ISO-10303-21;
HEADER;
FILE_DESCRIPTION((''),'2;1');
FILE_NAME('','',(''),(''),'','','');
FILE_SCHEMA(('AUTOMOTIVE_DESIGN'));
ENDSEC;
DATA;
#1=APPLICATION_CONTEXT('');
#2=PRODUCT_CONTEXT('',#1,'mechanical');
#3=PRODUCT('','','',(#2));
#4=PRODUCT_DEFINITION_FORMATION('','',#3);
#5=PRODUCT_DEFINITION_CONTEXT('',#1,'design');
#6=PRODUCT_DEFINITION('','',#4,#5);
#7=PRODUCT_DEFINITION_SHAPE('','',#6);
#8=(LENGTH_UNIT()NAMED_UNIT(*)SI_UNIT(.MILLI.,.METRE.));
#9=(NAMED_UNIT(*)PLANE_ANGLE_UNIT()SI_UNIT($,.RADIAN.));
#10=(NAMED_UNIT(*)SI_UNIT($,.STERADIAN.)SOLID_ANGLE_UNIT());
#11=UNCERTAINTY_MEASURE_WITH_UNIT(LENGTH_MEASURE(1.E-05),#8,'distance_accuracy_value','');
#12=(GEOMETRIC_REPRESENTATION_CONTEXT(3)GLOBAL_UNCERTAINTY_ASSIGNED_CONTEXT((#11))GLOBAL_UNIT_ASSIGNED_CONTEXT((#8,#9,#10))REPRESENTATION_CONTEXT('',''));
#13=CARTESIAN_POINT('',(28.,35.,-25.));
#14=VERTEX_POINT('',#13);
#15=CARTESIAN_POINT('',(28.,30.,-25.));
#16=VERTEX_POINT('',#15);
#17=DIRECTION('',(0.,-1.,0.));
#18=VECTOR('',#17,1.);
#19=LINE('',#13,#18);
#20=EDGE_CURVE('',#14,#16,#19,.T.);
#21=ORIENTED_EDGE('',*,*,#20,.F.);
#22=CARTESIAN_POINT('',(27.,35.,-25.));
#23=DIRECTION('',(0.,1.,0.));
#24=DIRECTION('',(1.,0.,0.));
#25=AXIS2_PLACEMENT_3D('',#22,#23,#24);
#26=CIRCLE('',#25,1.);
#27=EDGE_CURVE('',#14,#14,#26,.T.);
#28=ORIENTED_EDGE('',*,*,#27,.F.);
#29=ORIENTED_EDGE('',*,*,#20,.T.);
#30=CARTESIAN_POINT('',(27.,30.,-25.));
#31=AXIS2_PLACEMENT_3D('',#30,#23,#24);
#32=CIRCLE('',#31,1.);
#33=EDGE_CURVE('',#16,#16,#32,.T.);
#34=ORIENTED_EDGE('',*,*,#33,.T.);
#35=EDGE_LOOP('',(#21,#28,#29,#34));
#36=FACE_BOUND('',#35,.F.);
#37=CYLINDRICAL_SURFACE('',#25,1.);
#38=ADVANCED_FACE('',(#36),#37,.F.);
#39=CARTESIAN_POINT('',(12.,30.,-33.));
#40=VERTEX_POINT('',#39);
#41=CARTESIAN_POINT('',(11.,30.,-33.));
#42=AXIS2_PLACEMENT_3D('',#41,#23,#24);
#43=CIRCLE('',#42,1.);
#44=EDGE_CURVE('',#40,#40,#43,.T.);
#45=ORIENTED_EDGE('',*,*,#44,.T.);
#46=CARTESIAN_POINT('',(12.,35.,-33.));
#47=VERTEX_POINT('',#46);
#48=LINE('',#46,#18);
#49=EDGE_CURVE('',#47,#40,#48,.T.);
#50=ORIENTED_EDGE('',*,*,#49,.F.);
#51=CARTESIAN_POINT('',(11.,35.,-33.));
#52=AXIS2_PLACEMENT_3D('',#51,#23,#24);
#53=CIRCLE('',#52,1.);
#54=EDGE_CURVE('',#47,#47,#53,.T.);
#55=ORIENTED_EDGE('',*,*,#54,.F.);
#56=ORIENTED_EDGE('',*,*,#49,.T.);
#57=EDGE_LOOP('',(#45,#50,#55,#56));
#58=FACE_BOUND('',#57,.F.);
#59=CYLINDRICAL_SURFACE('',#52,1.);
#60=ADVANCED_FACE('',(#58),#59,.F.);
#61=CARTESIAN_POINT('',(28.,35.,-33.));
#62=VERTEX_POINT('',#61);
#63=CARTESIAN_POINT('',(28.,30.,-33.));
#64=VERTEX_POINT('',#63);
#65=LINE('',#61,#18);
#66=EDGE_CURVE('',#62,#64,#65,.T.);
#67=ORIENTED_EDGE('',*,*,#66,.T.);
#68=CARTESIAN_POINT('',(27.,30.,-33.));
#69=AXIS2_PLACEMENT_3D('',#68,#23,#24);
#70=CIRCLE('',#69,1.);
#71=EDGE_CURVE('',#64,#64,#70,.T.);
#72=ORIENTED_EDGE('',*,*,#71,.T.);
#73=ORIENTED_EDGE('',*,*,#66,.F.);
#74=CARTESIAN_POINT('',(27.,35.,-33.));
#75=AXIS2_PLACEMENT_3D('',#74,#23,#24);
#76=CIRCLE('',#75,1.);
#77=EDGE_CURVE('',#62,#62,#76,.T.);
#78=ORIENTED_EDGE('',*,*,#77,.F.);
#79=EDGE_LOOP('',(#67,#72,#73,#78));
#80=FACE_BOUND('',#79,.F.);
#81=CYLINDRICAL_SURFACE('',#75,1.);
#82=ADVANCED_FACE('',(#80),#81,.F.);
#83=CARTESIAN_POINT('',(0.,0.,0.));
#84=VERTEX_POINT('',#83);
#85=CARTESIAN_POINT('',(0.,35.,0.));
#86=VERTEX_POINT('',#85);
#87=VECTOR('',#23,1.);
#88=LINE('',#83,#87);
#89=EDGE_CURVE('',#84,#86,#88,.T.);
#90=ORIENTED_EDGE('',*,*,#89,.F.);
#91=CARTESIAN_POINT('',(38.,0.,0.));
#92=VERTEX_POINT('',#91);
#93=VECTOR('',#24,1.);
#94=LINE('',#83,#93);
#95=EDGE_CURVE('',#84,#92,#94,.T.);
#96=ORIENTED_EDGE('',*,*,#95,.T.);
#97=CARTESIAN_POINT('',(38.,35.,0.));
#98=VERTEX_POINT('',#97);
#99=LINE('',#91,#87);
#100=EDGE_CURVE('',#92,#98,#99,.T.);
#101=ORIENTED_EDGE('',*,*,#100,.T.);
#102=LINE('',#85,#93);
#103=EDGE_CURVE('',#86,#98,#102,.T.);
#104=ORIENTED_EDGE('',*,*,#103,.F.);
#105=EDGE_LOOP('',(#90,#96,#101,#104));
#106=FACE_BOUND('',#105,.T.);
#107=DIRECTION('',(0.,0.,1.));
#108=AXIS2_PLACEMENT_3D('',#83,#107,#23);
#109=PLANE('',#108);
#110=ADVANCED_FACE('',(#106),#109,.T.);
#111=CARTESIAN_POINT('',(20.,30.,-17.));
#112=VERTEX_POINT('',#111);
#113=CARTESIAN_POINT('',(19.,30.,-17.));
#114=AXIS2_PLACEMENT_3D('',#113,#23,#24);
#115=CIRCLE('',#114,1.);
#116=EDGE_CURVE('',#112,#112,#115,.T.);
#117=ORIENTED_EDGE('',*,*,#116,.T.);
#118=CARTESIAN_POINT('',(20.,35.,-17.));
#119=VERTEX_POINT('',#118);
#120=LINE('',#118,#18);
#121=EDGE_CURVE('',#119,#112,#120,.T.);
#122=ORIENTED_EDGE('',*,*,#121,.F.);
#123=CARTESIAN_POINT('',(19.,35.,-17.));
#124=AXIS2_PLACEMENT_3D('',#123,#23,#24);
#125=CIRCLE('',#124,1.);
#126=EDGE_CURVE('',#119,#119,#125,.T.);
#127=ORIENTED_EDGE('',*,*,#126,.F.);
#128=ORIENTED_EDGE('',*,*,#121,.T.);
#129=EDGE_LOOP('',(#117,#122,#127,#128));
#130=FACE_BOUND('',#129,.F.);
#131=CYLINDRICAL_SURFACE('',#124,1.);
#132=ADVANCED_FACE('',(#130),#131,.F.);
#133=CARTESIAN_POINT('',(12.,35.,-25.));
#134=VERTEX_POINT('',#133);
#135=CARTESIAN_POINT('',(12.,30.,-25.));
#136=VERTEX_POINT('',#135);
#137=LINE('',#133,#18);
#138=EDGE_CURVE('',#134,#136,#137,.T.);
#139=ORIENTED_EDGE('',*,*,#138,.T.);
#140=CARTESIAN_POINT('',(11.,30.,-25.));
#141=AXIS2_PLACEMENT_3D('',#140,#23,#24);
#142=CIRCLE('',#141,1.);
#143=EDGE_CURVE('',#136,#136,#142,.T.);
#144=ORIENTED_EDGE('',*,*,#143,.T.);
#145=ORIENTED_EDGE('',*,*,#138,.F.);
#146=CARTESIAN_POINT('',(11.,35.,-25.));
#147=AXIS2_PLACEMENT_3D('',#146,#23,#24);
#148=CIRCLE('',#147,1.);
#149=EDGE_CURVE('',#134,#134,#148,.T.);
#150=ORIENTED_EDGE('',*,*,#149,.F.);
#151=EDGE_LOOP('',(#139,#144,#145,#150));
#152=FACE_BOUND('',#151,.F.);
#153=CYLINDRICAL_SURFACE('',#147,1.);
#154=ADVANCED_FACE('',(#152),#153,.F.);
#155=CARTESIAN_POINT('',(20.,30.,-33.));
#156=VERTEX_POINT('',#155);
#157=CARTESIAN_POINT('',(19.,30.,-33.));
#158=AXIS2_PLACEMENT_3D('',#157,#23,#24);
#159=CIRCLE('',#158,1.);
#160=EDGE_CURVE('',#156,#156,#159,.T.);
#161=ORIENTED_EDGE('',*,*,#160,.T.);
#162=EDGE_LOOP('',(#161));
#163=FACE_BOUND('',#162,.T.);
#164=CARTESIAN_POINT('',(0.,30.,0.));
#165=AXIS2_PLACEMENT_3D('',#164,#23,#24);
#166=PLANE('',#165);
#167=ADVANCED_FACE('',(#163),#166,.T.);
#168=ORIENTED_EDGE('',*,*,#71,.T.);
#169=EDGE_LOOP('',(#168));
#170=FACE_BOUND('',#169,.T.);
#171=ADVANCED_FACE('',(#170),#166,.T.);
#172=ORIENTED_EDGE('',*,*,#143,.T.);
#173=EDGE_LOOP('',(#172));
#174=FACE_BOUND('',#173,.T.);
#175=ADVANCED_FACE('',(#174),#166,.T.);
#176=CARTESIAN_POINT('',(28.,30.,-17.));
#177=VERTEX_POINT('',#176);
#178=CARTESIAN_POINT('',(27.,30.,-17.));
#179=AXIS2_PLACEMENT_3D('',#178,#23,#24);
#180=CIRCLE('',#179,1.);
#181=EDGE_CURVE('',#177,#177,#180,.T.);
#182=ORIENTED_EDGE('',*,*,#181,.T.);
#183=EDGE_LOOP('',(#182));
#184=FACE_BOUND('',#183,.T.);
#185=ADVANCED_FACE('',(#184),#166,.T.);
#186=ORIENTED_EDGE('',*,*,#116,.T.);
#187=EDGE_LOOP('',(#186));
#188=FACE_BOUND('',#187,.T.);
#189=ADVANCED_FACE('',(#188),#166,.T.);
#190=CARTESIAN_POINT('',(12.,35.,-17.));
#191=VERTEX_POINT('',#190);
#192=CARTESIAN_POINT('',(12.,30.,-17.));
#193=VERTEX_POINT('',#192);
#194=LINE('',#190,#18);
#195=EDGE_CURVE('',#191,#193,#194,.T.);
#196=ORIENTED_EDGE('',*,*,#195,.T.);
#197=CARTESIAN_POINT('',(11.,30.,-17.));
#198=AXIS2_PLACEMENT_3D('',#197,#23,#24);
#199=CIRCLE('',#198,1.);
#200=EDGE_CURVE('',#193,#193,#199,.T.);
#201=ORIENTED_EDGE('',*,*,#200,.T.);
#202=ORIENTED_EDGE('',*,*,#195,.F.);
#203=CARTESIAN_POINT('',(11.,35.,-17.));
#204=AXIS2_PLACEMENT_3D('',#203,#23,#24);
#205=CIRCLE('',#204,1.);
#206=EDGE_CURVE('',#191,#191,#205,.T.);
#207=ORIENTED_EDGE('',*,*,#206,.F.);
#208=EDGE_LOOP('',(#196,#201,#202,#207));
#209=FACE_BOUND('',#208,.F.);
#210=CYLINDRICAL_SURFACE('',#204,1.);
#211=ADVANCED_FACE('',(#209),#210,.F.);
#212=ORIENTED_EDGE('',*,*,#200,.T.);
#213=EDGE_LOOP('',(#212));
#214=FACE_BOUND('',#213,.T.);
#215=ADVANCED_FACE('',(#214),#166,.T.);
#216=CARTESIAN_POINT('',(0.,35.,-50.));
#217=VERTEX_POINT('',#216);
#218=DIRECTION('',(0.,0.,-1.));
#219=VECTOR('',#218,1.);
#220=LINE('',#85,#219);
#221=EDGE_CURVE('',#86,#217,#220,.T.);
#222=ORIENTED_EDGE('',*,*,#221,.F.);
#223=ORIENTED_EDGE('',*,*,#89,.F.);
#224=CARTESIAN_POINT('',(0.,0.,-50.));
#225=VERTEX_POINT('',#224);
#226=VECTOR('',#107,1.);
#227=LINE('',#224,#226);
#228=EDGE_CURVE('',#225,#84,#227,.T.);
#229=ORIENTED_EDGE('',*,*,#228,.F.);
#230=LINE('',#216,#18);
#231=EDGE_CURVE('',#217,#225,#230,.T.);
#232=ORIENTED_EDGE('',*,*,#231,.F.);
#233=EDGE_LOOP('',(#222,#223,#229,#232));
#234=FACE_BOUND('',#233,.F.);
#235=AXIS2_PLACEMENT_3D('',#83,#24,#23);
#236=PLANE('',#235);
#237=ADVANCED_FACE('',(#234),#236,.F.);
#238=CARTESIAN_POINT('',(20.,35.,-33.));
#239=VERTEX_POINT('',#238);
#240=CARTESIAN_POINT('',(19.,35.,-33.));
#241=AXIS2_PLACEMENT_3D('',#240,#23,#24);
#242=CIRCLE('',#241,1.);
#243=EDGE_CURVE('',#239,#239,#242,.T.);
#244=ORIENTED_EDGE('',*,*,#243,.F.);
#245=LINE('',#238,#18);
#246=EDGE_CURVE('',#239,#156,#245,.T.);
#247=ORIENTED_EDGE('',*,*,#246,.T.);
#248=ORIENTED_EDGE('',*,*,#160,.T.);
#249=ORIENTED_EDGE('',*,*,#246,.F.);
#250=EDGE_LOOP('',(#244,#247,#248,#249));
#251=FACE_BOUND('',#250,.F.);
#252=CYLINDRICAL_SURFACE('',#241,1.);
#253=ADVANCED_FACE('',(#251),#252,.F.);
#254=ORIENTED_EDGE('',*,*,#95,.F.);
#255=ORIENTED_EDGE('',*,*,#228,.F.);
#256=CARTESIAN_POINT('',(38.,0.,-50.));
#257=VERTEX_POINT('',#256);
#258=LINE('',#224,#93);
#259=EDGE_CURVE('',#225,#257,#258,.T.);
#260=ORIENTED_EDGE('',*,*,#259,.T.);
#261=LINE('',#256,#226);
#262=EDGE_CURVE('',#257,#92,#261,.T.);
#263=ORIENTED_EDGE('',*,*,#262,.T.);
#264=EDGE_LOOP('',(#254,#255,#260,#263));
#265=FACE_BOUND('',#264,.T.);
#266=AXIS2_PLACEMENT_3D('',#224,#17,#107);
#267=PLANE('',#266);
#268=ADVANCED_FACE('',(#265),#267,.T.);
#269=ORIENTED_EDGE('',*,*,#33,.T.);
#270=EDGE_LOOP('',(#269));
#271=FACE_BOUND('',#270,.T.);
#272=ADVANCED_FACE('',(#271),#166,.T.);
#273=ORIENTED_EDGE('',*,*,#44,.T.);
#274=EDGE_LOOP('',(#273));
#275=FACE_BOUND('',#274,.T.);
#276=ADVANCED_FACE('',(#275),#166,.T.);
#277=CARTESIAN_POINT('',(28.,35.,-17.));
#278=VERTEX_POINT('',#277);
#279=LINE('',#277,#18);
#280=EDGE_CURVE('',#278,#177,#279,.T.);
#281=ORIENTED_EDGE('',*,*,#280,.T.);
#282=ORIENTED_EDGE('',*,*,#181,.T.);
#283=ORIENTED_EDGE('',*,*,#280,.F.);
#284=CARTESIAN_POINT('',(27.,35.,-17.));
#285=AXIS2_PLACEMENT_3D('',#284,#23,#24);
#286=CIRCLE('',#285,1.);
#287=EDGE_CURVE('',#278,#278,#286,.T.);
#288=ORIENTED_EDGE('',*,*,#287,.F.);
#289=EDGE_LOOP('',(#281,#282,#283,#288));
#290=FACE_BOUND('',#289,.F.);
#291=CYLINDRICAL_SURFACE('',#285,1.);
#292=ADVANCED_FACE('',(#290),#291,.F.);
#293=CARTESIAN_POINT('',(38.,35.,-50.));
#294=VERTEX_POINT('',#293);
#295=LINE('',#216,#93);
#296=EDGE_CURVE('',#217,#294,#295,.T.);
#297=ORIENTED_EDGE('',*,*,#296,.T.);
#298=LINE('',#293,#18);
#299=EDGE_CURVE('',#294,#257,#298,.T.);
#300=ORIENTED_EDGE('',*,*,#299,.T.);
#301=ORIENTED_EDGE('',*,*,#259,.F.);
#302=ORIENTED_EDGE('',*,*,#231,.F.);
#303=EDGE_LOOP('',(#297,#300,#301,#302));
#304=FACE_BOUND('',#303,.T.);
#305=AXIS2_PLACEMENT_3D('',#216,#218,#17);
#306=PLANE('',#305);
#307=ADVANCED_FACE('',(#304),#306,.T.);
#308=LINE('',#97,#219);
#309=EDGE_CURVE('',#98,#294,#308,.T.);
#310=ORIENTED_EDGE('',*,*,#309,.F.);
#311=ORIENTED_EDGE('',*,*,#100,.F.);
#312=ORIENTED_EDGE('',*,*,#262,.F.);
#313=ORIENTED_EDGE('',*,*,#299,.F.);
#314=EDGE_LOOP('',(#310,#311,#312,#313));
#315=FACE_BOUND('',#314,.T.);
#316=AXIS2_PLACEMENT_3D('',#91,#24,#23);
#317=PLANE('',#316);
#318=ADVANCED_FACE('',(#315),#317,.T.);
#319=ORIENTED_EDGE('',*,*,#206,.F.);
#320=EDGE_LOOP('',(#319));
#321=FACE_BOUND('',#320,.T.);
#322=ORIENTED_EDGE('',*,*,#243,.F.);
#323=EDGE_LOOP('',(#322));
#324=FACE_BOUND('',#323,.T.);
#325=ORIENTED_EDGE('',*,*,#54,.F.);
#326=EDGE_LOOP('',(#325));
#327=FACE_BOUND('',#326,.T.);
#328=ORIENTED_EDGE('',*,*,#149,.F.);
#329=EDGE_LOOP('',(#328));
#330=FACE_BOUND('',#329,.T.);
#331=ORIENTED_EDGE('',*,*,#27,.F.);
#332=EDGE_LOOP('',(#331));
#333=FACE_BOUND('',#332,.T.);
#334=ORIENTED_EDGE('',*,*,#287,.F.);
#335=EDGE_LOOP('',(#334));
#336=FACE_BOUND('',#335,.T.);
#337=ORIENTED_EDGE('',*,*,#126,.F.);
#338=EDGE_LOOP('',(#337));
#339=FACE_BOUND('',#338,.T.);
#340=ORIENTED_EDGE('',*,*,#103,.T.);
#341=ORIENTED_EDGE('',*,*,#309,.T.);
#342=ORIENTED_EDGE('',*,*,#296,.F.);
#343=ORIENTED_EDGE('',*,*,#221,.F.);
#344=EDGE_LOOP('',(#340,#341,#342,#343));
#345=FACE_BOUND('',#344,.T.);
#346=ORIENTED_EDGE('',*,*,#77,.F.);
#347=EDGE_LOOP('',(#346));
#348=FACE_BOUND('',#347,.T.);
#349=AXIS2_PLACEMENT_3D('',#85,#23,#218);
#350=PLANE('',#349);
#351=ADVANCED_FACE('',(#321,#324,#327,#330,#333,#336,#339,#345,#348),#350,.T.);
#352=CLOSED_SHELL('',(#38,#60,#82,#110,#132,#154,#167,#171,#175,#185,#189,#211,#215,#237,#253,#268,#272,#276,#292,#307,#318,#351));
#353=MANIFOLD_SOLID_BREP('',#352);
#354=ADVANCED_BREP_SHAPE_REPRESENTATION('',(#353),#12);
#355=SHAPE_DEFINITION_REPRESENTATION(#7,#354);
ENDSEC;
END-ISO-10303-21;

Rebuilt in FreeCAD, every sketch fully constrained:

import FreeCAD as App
import Part
import Sketcher
from FreeCAD import Vector
Q = App.Units.Quantity


def add_polygon(sketch, points):
    """Adds a closed chain of lines whose ends are joined by coincident constraints."""
    first, n = sketch.GeometryCount, len(points)
    for a, b in zip(points, points[1:] + points[:1]):
        sketch.addGeometry(Part.LineSegment(App.Vector(*a, 0), App.Vector(*b, 0)), False)
    for i in range(n):
        sketch.addConstraint(Sketcher.Constraint("Coincident", first + i, 2, first + (i + 1) % n, 1))

doc = App.newDocument("Part")
body = doc.addObject("PartDesign::Body", "Body")

# Sketch on YZ plane
sketch1 = doc.addObject("Sketcher::SketchObject", "Sketch")
body.addObject(sketch1)
sketch1.AttachmentSupport = (doc.YZ_Plane, [""])
sketch1.MapMode = "FlatFace"
add_polygon(sketch1, [(35, 0), (0, 0), (0, -50), (35, -50)])  # lines 0-3
sketch1.addConstraint([
    Sketcher.Constraint("Horizontal", 0),
    Sketcher.Constraint("Vertical", 1),
    Sketcher.Constraint("Horizontal", 2),
    Sketcher.Constraint("Vertical", 3),
    Sketcher.Constraint("Coincident", 0, 2, -1, 1),
    Sketcher.Constraint("DistanceX", 0, 2, 0, 1, Q("35 mm")),
    Sketcher.Constraint("DistanceY", 1, 2, 1, 1, Q("50 mm")),
])
pad1 = doc.addObject("PartDesign::Pad", "Pad")
body.addObject(pad1)
pad1.Profile = sketch1
pad1.Length = 38

# Sketch on XZ plane
sketch2 = doc.addObject("Sketcher::SketchObject", "Sketch001")
body.addObject(sketch2)
sketch2.AttachmentSupport = (doc.XZ_Plane, [""])
sketch2.MapMode = "FlatFace"
sketch2.AttachmentOffset = App.Placement(Vector(0, 0, -35), App.Rotation())
sketch2.addGeometry([
    Part.Circle(Vector(11, -25, 0), Vector(0, 0, 1), 1),  # 0
    Part.Circle(Vector(11, -17, 0), Vector(0, 0, 1), 1),  # 1
    Part.Circle(Vector(11, -33, 0), Vector(0, 0, 1), 1),  # 2
    Part.Circle(Vector(19, -17, 0), Vector(0, 0, 1), 1),  # 3
    Part.Circle(Vector(19, -33, 0), Vector(0, 0, 1), 1),  # 4
    Part.Circle(Vector(27, -17, 0), Vector(0, 0, 1), 1),  # 5
    Part.Circle(Vector(27, -25, 0), Vector(0, 0, 1), 1),  # 6
    Part.Circle(Vector(27, -33, 0), Vector(0, 0, 1), 1),  # 7
], False)
sketch2.addConstraint([
    Sketcher.Constraint("Equal", 0, 1),
    Sketcher.Constraint("Equal", 1, 2),
    Sketcher.Constraint("Equal", 2, 3),
    Sketcher.Constraint("Equal", 3, 4),
    Sketcher.Constraint("Equal", 4, 5),
    Sketcher.Constraint("Equal", 5, 6),
    Sketcher.Constraint("Equal", 6, 7),
    Sketcher.Constraint("Horizontal", 1, 3, 3, 3),
    Sketcher.Constraint("Horizontal", 2, 3, 4, 3),
    Sketcher.Constraint("Horizontal", 3, 3, 5, 3),
    Sketcher.Constraint("Horizontal", 0, 3, 6, 3),
    Sketcher.Constraint("Horizontal", 4, 3, 7, 3),
    Sketcher.Constraint("Vertical", 0, 3, 1, 3),
    Sketcher.Constraint("Vertical", 1, 3, 2, 3),
    Sketcher.Constraint("Vertical", 3, 3, 4, 3),
    Sketcher.Constraint("Vertical", 5, 3, 6, 3),
    Sketcher.Constraint("Vertical", 6, 3, 7, 3),
    Sketcher.Constraint("Diameter", 0, Q("2 mm")),
    Sketcher.Constraint("DistanceX", -1, 1, 0, 3, Q("11 mm")),
    Sketcher.Constraint("DistanceY", 0, 3, -1, 1, Q("25 mm")),
    Sketcher.Constraint("DistanceY", 0, 3, 1, 3, Q("8 mm")),
    Sketcher.Constraint("DistanceY", 2, 3, 0, 3, Q("8 mm")),
    Sketcher.Constraint("DistanceX", 1, 3, 3, 3, Q("8 mm")),
    Sketcher.Constraint("DistanceX", 3, 3, 5, 3, Q("8 mm")),
])
pocket1 = doc.addObject("PartDesign::Pocket", "Pocket")
body.addObject(pocket1)
pocket1.Profile = sketch2
pocket1.Length = 5
pocket1.Reversed = True

doc.recompute()
